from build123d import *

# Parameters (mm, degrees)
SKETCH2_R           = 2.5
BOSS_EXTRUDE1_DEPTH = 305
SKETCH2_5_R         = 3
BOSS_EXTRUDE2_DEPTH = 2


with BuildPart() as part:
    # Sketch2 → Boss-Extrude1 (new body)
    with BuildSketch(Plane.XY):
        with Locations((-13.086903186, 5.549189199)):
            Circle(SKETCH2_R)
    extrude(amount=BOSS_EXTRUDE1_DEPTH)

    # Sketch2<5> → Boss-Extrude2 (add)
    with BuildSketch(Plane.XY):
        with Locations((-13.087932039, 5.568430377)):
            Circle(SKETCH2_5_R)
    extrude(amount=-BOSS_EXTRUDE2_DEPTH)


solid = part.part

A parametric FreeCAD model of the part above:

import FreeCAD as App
import Part
import Sketcher
from FreeCAD import Vector

doc = App.newDocument("Part")
body = doc.addObject("PartDesign::Body", "Body")

sketch1 = body.newObject("Sketcher::SketchObject", "Sketch")
sketch1.AttachmentSupport = (doc.getObject("XY_Plane"), [""])
sketch1.MapMode = "FlatFace"
sketch1.addGeometry(Part.Circle(Vector(-13.1, 5.5, 0), Vector(0, 0, 1), 2.5), False)
sketch1.addConstraint([
    Sketcher.Constraint("Diameter", 0, 5.0),
    Sketcher.Constraint("DistanceY", -1, 1, 0, 3, 5.549189),
    Sketcher.Constraint("DistanceX", 0, 3, -1, 1, 13.086903),
])
pad1 = body.newObject("PartDesign::Pad", "Pad")
pad1.Profile = sketch1
pad1.Length = 305

sketch2 = body.newObject("Sketcher::SketchObject", "Sketch001")
sketch2.AttachmentSupport = (doc.getObject("XY_Plane"), [""])
sketch2.MapMode = "FlatFace"
sketch2.addGeometry(Part.Circle(Vector(-13.1, 5.6, 0), Vector(0, 0, 1), 3), False)
sketch2.addConstraint([
    Sketcher.Constraint("Diameter", 0, 6.0),
    Sketcher.Constraint("DistanceY", -1, 1, 0, 3, 5.56843),
    Sketcher.Constraint("DistanceX", 0, 3, -1, 1, 13.087932),
])
pad2 = body.newObject("PartDesign::Pad", "Pad001")
pad2.Profile = sketch2
pad2.Length = 2
pad2.Reversed = True

doc.recompute()
